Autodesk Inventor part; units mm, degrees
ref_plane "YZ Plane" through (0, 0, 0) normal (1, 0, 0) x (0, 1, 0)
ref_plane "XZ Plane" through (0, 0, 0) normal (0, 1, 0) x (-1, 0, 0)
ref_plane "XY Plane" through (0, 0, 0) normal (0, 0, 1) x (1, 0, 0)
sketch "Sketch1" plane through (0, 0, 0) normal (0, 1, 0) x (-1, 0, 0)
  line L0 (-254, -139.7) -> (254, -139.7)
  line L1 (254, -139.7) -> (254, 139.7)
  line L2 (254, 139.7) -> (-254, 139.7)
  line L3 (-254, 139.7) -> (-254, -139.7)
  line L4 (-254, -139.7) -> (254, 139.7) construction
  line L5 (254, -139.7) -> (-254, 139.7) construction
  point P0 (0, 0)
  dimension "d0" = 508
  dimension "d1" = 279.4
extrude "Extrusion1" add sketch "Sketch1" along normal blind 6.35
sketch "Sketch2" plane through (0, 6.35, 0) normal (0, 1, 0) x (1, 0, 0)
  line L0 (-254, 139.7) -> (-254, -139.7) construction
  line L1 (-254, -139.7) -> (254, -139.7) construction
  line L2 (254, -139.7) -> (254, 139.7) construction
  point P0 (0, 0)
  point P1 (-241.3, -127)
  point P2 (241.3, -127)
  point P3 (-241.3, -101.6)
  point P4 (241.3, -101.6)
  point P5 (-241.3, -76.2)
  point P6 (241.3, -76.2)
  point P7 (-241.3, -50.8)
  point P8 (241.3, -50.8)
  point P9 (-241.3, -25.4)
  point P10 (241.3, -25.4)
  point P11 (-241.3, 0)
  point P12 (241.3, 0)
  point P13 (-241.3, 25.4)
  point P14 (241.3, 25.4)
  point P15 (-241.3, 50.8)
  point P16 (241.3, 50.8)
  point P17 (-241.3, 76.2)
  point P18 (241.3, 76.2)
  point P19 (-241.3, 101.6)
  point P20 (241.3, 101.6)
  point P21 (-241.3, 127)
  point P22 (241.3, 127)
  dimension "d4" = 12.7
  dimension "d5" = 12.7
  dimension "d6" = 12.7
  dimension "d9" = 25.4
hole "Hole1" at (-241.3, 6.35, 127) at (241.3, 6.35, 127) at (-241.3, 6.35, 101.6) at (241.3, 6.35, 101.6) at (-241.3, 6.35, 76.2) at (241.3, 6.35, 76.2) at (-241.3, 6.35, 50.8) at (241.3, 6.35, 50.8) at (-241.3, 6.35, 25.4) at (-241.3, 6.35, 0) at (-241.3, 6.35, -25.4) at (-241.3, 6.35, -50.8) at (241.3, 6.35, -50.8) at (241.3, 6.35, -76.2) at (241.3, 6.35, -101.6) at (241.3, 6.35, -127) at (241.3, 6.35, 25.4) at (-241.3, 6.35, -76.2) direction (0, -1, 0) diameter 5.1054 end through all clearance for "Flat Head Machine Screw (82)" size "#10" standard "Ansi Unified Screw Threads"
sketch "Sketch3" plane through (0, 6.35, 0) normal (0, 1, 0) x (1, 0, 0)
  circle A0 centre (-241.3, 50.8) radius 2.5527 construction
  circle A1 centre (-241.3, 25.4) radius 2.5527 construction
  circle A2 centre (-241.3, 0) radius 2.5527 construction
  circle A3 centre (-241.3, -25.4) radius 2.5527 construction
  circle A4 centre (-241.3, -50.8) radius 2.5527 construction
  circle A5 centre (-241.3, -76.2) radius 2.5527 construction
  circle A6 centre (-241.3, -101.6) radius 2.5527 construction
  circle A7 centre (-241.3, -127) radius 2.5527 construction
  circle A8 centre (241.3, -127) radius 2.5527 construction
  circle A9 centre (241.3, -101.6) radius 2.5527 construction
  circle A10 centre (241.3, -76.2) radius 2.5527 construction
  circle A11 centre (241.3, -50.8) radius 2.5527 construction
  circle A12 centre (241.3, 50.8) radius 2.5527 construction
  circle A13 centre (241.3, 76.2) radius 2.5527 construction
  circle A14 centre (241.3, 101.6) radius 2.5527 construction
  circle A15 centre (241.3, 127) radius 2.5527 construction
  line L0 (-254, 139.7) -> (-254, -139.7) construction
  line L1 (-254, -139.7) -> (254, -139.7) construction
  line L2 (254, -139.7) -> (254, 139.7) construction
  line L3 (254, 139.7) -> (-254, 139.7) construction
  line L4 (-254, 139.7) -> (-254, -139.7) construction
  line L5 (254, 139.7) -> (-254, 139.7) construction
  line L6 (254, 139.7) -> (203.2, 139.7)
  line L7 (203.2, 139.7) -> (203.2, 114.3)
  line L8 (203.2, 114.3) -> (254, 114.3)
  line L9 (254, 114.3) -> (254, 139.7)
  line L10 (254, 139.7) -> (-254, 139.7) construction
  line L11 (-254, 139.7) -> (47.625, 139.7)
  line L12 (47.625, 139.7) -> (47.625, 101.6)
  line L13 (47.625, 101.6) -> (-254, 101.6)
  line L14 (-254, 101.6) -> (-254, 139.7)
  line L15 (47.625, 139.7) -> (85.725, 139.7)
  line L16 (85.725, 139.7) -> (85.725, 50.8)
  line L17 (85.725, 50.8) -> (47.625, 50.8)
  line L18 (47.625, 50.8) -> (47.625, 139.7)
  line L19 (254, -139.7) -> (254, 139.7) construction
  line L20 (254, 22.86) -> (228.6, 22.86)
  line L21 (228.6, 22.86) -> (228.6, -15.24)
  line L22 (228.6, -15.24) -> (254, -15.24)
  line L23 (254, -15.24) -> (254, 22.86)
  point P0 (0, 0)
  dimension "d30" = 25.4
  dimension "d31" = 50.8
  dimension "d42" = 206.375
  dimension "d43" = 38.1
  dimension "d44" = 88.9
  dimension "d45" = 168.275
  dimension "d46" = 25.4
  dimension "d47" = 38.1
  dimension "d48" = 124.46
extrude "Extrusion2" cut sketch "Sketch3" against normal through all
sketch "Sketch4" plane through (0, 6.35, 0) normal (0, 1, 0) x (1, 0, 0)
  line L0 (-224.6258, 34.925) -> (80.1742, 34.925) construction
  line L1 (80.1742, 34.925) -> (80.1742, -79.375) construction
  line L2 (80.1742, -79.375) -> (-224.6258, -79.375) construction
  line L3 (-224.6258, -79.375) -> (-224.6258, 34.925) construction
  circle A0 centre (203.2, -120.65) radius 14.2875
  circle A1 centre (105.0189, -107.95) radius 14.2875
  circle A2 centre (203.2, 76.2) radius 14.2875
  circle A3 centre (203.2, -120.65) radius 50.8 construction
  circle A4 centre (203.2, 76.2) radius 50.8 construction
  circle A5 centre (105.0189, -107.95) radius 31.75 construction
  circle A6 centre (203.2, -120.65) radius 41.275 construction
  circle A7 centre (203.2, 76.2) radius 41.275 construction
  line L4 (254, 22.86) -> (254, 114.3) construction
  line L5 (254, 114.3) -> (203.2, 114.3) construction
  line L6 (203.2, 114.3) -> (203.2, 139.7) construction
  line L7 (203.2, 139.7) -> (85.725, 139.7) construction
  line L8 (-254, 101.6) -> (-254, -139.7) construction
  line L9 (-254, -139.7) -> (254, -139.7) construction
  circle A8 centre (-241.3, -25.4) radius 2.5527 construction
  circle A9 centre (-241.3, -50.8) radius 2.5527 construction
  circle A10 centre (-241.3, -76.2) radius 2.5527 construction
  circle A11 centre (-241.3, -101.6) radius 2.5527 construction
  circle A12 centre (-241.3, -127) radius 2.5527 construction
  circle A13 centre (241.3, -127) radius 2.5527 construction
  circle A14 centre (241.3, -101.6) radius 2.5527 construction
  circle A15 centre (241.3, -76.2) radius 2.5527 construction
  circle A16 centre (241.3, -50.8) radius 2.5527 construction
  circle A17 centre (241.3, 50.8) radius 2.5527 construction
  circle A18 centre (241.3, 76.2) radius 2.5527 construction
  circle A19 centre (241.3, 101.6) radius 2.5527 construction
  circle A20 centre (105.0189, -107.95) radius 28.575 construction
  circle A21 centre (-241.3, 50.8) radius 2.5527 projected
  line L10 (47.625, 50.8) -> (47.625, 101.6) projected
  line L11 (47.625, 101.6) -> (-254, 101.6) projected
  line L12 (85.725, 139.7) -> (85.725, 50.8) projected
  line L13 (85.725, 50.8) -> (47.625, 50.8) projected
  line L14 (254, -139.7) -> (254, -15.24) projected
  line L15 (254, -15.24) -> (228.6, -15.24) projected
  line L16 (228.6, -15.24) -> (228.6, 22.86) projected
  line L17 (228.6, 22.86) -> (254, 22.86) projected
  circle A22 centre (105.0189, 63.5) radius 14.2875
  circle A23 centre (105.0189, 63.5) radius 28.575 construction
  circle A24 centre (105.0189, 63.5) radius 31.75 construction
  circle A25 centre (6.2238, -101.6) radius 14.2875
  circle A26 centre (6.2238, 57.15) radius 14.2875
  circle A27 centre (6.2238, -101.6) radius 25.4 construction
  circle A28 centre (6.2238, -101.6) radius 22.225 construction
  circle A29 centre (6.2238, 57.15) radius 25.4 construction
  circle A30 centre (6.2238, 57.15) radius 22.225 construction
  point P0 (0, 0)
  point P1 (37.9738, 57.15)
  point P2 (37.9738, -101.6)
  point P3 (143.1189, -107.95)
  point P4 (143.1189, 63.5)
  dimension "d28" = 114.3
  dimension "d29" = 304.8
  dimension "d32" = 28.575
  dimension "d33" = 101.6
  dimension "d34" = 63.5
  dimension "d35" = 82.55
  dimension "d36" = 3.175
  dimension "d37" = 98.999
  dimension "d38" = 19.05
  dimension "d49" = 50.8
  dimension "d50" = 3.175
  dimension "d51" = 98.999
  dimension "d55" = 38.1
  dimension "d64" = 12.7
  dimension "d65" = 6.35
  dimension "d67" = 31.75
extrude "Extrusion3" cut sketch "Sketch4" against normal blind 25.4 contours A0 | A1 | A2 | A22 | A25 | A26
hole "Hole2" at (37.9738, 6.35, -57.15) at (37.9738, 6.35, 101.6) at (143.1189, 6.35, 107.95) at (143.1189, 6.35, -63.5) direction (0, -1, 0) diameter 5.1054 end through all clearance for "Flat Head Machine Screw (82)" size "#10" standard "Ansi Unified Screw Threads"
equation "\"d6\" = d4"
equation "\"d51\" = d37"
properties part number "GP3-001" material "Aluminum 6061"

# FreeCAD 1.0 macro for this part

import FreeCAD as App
import Part
import Sketcher

V = App.Vector
Q = App.Units.Quantity


def add_polygon(sketch, points):
    """Adds a closed chain of lines whose ends are joined by coincident constraints."""
    first, n = sketch.GeometryCount, len(points)
    for a, b in zip(points, points[1:] + points[:1]):
        sketch.addGeometry(Part.LineSegment(App.Vector(*a, 0), App.Vector(*b, 0)), False)
    for i in range(n):
        sketch.addConstraint(Sketcher.Constraint("Coincident", first + i, 2, first + (i + 1) % n, 1))

doc = App.newDocument("Part")
body = doc.addObject("PartDesign::Body", "Body")

sketch1 = body.newObject("Sketcher::SketchObject", "Sketch")
sketch1.AttachmentSupport = (doc.getObject("XZ_Plane"), [""])
sketch1.MapMode = "FlatFace"
add_polygon(sketch1, [(254, 139.7), (254, -139.7), (-254, -139.7), (-254, 139.7)])
sketch1.addConstraint([
    Sketcher.Constraint("Vertical", 0),
    Sketcher.Constraint("Horizontal", 1),
    Sketcher.Constraint("Vertical", 2),
    Sketcher.Constraint("Horizontal", 3),
    Sketcher.Constraint("Symmetric", 0, 2, 2, 2, -1, 1),
    Sketcher.Constraint("DistanceX", 1, 2, 1, 1, Q("20 in")),
    Sketcher.Constraint("DistanceY", 0, 2, 0, 1, Q("11 in")),
])
pad1 = body.newObject("PartDesign::Pad", "Pad")
pad1.Profile = sketch1
pad1.Length = Q("0.25 in")
pad1.Reversed = True

sketch2 = body.newObject("Sketcher::SketchObject", "Sketch001")
sketch2.AttachmentSupport = (doc.getObject("XZ_Plane"), [""])
sketch2.MapMode = "FlatFace"
sketch2.AttachmentOffset = App.Placement(V(0, 0, -0.25 * 25.4), App.Rotation())
sketch2.addGeometry([
    Part.Circle(V(-241.3, 127, 0), V(0, 0, 1), 2.5527),
    Part.Circle(V(241.3, 127, 0), V(0, 0, 1), 2.5527),
    Part.Circle(V(-241.3, 101.6, 0), V(0, 0, 1), 2.5527),
    Part.Circle(V(241.3, 101.6, 0), V(0, 0, 1), 2.5527),
    Part.Circle(V(-241.3, 76.2, 0), V(0, 0, 1), 2.5527),
    Part.Circle(V(241.3, 76.2, 0), V(0, 0, 1), 2.5527),
    Part.Circle(V(-241.3, 50.8, 0), V(0, 0, 1), 2.5527),
    Part.Circle(V(241.3, 50.8, 0), V(0, 0, 1), 2.5527),
    Part.Circle(V(-241.3, 25.4, 0), V(0, 0, 1), 2.5527),
    Part.Circle(V(-241.3, 0, 0), V(0, 0, 1), 2.5527),
    Part.Circle(V(-241.3, -25.4, 0), V(0, 0, 1), 2.5527),
    Part.Circle(V(-241.3, -50.8, 0), V(0, 0, 1), 2.5527),
    Part.Circle(V(241.3, -50.8, 0), V(0, 0, 1), 2.5527),
    Part.Circle(V(241.3, -76.2, 0), V(0, 0, 1), 2.5527),
    Part.Circle(V(241.3, -101.6, 0), V(0, 0, 1), 2.5527),
    Part.Circle(V(241.3, -127, 0), V(0, 0, 1), 2.5527),
    Part.Circle(V(241.3, 25.4, 0), V(0, 0, 1), 2.5527),
    Part.Circle(V(-241.3, -76.2, 0), V(0, 0, 1), 2.5527),
], False)
sketch2.addConstraint([
    Sketcher.Constraint("Equal", 0, 1),
    Sketcher.Constraint("Equal", 1, 2),
    Sketcher.Constraint("Equal", 2, 3),
    Sketcher.Constraint("Equal", 3, 4),
    Sketcher.Constraint("Equal", 4, 5),
    Sketcher.Constraint("Equal", 5, 6),
    Sketcher.Constraint("Equal", 6, 7),
    Sketcher.Constraint("Equal", 7, 8),
    Sketcher.Constraint("Equal", 8, 9),
    Sketcher.Constraint("Equal", 9, 10),
    Sketcher.Constraint("Equal", 10, 11),
    Sketcher.Constraint("Equal", 11, 12),
    Sketcher.Constraint("Equal", 12, 13),
    Sketcher.Constraint("Equal", 13, 14),
    Sketcher.Constraint("Equal", 14, 15),
    Sketcher.Constraint("Equal", 15, 16),
    Sketcher.Constraint("Equal", 16, 17),
    Sketcher.Constraint("Symmetric", 7, 3, 11, 3, -1, 1),
    Sketcher.Constraint("Symmetric", 6, 3, 12, 3, -1, 1),
    Sketcher.Constraint("Symmetric", 4, 3, 13, 3, -1, 1),
    Sketcher.Constraint("Symmetric", 2, 3, 14, 3, -1, 1),
    Sketcher.Constraint("Symmetric", 0, 3, 15, 3, -1, 1),
    Sketcher.Constraint("Symmetric", 10, 3, 16, 3, -1, 1),
    Sketcher.Constraint("Symmetric", 5, 3, 17, 3, -1, 1),
    Sketcher.Constraint("Symmetric", 0, 3, 1, 3, -2),
    Sketcher.Constraint("Symmetric", 2, 3, 3, 3, -2),
    Sketcher.Constraint("Symmetric", 4, 3, 5, 3, -2),
    Sketcher.Constraint("Symmetric", 6, 3, 7, 3, -2),
    Sketcher.Constraint("Symmetric", 8, 3, 16, 3, -2),
    Sketcher.Constraint("PointOnObject", 9, 3, -1),
    Sketcher.Constraint("Vertical", 0, 3, 2, 3),
    Sketcher.Constraint("Vertical", 2, 3, 4, 3),
    Sketcher.Constraint("Vertical", 4, 3, 6, 3),
    Sketcher.Constraint("Vertical", 6, 3, 8, 3),
    Sketcher.Constraint("Vertical", 8, 3, 9, 3),
    Sketcher.Constraint("Diameter", 0, Q("0.201 in")),
    Sketcher.Constraint("DistanceY", -1, 1, 0, 3, Q("5 in")),
    Sketcher.Constraint("DistanceY", -1, 1, 2, 3, Q("4 in")),
    Sketcher.Constraint("DistanceY", -1, 1, 4, 3, Q("3 in")),
    Sketcher.Constraint("DistanceY", -1, 1, 6, 3, Q("2 in")),
    Sketcher.Constraint("DistanceY", -1, 1, 8, 3, Q("1 in")),
    Sketcher.Constraint("DistanceX", 0, 3, 1, 3, Q("19 in")),
])
doc.recompute()
hole = body.newObject("PartDesign::Hole", "Hole")
hole.Profile = sketch2
hole.ThreadType = "None"
hole.Diameter = Q("0.201 in")
hole.DepthType = "ThroughAll"
hole.Reversed = True

sketch3 = body.newObject("Sketcher::SketchObject", "Sketch002")
sketch3.AttachmentSupport = (doc.getObject("XZ_Plane"), [""])
sketch3.MapMode = "FlatFace"
sketch3.AttachmentOffset = App.Placement(V(0, 0, -0.25 * 25.4), App.Rotation())
add_polygon(sketch3, [(254, -114.3), (254, -139.7), (203.2, -139.7), (203.2, -114.3)])
add_polygon(sketch3, [(-254, -139.7), (-254, -101.6), (47.625, -101.6), (47.625, -50.8), (85.725, -50.8), (85.725, -139.7)])
add_polygon(sketch3, [(254, 15.24), (254, -22.86), (228.6, -22.86), (228.6, 15.24)])
sketch3.addConstraint([
    Sketcher.Constraint("Vertical", 0),
    Sketcher.Constraint("Horizontal", 1),
    Sketcher.Constraint("Vertical", 2),
    Sketcher.Constraint("Horizontal", 3),
    Sketcher.Constraint("Vertical", 4),
    Sketcher.Constraint("Horizontal", 5),
    Sketcher.Constraint("Vertical", 6),
    Sketcher.Constraint("Horizontal", 7),
    Sketcher.Constraint("Vertical", 8),
    Sketcher.Constraint("Horizontal", 9),
    Sketcher.Constraint("Vertical", 10),
    Sketcher.Constraint("Horizontal", 11),
    Sketcher.Constraint("Vertical", 12),
    Sketcher.Constraint("Horizontal", 13),
    Sketcher.Constraint("Symmetric", 0, 2, 9, 2, -2),
    Sketcher.Constraint("Vertical", 3, 2, 10, 2),
    Sketcher.Constraint("Equal", 13, 0),
    Sketcher.Constraint("Equal", 7, 4),
    Sketcher.Constraint("Equal", 3, 6),
    Sketcher.Constraint("Equal", 4, 10),
    Sketcher.Constraint("DistanceX", 1, 2, 1, 1, Q("2 in")),
    Sketcher.Constraint("DistanceX", 11, 2, 11, 1, Q("1 in")),
    Sketcher.Constraint("DistanceX", 7, 1, 7, 2, Q("1.5 in")),
    Sketcher.Constraint("DistanceY", 6, 2, -1, 1, Q("2 in")),
    Sketcher.Constraint("DistanceX", -1, 1, 0, 2, Q("10 in")),
    Sketcher.Constraint("DistanceX", 5, 2, 3, 2, Q("8.125 in")),
    Sketcher.Constraint("DistanceY", 10, 2, -1, 1, Q("0.9 in")),
])
pocket1 = body.newObject("PartDesign::Pocket", "Pocket")
pocket1.Profile = sketch3
pocket1.Type = "ThroughAll"
pocket1.Reversed = True

sketch4 = body.newObject("Sketcher::SketchObject", "Sketch003")
sketch4.AttachmentSupport = (doc.getObject("XZ_Plane"), [""])
sketch4.MapMode = "FlatFace"
sketch4.AttachmentOffset = App.Placement(V(0, 0, -0.25 * 25.4), App.Rotation())
sketch4.addGeometry([
    Part.Circle(V(203.2, 120.65, 0), V(0, 0, 1), 14.2875),
    Part.Circle(V(105.0189, 107.95, 0), V(0, 0, 1), 14.2875),
    Part.Circle(V(203.2, -76.2, 0), V(0, 0, 1), 14.2875),
    Part.Circle(V(105.0189, -63.5, 0), V(0, 0, 1), 14.2875),
    Part.Circle(V(6.2238, 101.6, 0), V(0, 0, 1), 14.2875),
    Part.Circle(V(6.2238, -57.15, 0), V(0, 0, 1), 14.2875),
], False)
sketch4.addConstraint([
    Sketcher.Constraint("Equal", 0, 1),
    Sketcher.Constraint("Equal", 1, 2),
    Sketcher.Constraint("Equal", 2, 3),
    Sketcher.Constraint("Equal", 3, 4),
    Sketcher.Constraint("Equal", 4, 5),
    Sketcher.Constraint("Vertical", 0, 3, 2, 3),
    Sketcher.Constraint("Vertical", 1, 3, 3, 3),
    Sketcher.Constraint("Vertical", 4, 3, 5, 3),
    Sketcher.Constraint("Diameter", 0, Q("1.125 in")),
    Sketcher.Constraint("DistanceY", -1, 1, 4, 3, Q("4 in")),
    Sketcher.Constraint("DistanceY", 3, 3, -1, 1, Q("2.5 in")),
    Sketcher.Constraint("DistanceY", 1, 3, 0, 3, Q("0.5 in")),
    Sketcher.Constraint("DistanceY", 2, 3, 3, 3, Q("0.5 in")),
    Sketcher.Constraint("DistanceY", 4, 3, 1, 3, Q("0.25 in")),
    Sketcher.Constraint("DistanceY", 3, 3, 5, 3, Q("0.25 in")),
    Sketcher.Constraint("DistanceX", -1, 1, 0, 3, Q("8 in")),
    Sketcher.Constraint("DistanceX", -1, 1, 1, 3, Q("4.1346 in")),
    Sketcher.Constraint("DistanceX", -1, 1, 4, 3, Q("6.2238 mm")),
])
pocket2 = body.newObject("PartDesign::Pocket", "Pocket001")
pocket2.Profile = sketch4
pocket2.Length = Q("1 in")
pocket2.Reversed = True

sketch5 = body.newObject("Sketcher::SketchObject", "Sketch004")
sketch5.AttachmentSupport = (doc.getObject("XZ_Plane"), [""])
sketch5.MapMode = "FlatFace"
sketch5.AttachmentOffset = App.Placement(V(0, 0, -0.25 * 25.4), App.Rotation())
sketch5.addGeometry([
    Part.Circle(V(37.9738, -57.15, 0), V(0, 0, 1), 2.5527),
    Part.Circle(V(37.9738, 101.6, 0), V(0, 0, 1), 2.5527),
    Part.Circle(V(143.1189, 107.95, 0), V(0, 0, 1), 2.5527),
    Part.Circle(V(143.1189, -63.5, 0), V(0, 0, 1), 2.5527),
], False)
sketch5.addConstraint([
    Sketcher.Constraint("Equal", 0, 1),
    Sketcher.Constraint("Equal", 1, 2),
    Sketcher.Constraint("Equal", 2, 3),
    Sketcher.Constraint("Vertical", 0, 3, 1, 3),
    Sketcher.Constraint("Vertical", 2, 3, 3, 3),
    Sketcher.Constraint("Diameter", 0, Q("0.201 in")),
    Sketcher.Constraint("DistanceY", -1, 1, 1, 3, Q("4 in")),
    Sketcher.Constraint("DistanceY", 3, 3, -1, 1, Q("2.5 in")),
    Sketcher.Constraint("DistanceY", 0, 3, 2, 3, Q("6.5 in")),
    Sketcher.Constraint("DistanceY", 0, 3, -1, 1, Q("2.25 in")),
    Sketcher.Constraint("DistanceX", -1, 1, 2, 3, Q("5.6346 in")),
    Sketcher.Constraint("DistanceX", -1, 1, 0, 3, Q("37.9738 mm")),
])
doc.recompute()
hole2 = body.newObject("PartDesign::Hole", "Hole001")
hole2.Profile = sketch5
hole2.ThreadType = "None"
hole2.Diameter = Q("0.201 in")
hole2.DepthType = "ThroughAll"
hole2.Reversed = True

doc.recompute()
